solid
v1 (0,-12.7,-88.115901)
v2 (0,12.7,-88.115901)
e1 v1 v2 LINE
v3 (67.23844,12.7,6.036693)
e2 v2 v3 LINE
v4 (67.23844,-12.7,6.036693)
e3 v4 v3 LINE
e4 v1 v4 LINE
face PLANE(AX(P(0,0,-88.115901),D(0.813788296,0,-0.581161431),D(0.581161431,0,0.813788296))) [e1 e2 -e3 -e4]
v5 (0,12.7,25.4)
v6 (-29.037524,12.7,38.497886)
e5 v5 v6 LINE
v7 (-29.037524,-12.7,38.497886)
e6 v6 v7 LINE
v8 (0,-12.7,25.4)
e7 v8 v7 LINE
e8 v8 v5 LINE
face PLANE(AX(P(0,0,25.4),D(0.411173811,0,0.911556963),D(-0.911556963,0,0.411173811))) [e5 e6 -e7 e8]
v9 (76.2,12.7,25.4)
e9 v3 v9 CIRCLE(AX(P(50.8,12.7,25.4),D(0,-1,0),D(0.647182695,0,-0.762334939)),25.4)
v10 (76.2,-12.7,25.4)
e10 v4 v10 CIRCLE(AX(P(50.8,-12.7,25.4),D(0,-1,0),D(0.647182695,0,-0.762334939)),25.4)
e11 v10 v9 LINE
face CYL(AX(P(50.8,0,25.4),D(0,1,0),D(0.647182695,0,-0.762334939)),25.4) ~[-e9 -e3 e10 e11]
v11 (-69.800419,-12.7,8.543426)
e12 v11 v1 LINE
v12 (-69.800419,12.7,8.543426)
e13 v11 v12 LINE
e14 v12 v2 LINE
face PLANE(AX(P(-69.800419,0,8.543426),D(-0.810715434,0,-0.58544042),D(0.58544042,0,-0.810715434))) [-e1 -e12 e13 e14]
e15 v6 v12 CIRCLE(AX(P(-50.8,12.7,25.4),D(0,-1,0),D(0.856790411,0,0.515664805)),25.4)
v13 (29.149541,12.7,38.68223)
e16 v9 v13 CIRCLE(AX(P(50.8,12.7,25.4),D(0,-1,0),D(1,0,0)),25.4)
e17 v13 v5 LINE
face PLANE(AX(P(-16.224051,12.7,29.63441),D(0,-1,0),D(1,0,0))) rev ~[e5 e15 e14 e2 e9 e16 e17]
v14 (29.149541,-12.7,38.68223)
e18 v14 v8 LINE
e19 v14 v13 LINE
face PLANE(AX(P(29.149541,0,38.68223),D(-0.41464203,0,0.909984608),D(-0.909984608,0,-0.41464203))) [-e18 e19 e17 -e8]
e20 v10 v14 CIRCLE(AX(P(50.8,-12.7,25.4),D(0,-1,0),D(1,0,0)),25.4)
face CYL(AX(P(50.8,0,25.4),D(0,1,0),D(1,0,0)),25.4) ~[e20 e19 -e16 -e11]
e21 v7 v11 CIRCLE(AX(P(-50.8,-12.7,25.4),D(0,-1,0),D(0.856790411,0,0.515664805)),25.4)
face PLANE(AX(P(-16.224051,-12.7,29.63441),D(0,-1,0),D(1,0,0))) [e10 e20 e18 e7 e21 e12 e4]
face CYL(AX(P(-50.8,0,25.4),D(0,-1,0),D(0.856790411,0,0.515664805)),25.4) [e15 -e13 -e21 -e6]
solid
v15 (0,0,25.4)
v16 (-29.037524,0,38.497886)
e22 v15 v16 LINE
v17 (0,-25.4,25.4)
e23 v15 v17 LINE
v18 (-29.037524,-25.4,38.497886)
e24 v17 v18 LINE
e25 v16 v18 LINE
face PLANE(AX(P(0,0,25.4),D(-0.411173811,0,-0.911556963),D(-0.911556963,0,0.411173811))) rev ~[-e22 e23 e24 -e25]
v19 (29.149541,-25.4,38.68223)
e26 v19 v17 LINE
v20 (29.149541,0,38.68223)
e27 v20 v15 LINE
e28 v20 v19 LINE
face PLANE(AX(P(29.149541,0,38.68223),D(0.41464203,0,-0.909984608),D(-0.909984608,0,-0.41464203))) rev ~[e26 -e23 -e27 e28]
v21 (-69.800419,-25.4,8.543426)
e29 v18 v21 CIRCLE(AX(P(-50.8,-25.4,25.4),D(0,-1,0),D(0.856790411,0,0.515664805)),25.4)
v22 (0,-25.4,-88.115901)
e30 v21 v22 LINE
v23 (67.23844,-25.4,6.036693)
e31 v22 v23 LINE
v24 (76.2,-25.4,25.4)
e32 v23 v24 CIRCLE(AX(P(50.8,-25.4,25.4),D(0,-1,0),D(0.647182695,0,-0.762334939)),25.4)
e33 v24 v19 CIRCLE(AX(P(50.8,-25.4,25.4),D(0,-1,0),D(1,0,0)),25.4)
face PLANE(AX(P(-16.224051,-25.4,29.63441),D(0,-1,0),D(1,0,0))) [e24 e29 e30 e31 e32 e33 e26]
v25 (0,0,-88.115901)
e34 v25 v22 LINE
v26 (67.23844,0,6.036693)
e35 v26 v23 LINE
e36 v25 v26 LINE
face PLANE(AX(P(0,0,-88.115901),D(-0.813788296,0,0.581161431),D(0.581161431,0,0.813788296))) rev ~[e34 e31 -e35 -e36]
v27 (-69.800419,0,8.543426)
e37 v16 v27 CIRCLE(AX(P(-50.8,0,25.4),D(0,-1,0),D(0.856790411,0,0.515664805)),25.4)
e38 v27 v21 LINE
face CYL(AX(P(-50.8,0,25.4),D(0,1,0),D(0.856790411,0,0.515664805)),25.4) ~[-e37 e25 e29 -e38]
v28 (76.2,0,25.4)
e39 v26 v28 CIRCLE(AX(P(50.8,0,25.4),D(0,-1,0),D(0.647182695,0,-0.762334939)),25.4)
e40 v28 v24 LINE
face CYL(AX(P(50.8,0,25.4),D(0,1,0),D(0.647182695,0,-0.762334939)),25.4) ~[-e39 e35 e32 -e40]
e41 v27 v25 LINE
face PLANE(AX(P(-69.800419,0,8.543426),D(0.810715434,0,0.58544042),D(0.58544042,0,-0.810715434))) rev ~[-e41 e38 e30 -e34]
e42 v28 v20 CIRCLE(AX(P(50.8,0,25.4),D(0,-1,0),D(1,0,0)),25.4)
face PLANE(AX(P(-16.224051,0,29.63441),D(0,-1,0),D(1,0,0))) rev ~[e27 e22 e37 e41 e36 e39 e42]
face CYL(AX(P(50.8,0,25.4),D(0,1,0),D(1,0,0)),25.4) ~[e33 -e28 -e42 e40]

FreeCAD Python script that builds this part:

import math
import FreeCAD as App
import Part
import Sketcher

V = App.Vector
Q = App.Units.Quantity

doc = App.newDocument("Part")
body = doc.addObject("PartDesign::Body", "Body")

# Sketch on XZ plane
sketch1 = doc.addObject("Sketcher::SketchObject", "Sketch")
body.addObject(sketch1)
sketch1.AttachmentSupport = (doc.XZ_Plane, [""])
sketch1.MapMode = "FlatFace"
sketch1.addGeometry([
    Part.LineSegment(V(0, 25.4, 0), V(-29.037524, 38.497886, 0)),  # 0
    Part.ArcOfCircle(Part.Circle(V(-50.8, 25.4, 0), V(0, 0, 1), 25.4), math.radians(31.041902), math.radians(221.57843)),  # 1
    Part.LineSegment(V(-69.800419, 8.543426, 0), V(0, -88.115901, 0)),  # 2
    Part.LineSegment(V(0, -88.115901, 0), V(67.23844, 6.036693, 0)),  # 3
    Part.ArcOfCircle(Part.Circle(V(50.8, 25.4, 0), V(0, 0, 1), 25.4), math.radians(-49.670476), math.radians(0)),  # 4
    Part.ArcOfCircle(Part.Circle(V(50.8, 25.4, 0), V(0, 0, 1), 25.4), math.radians(0), math.radians(148.471512)),  # 5
    Part.LineSegment(V(29.149541, 38.68223, 0), V(0, 25.4, 0)),  # 6
], False)
sketch1.addConstraint([
    Sketcher.Constraint("Coincident", 0, 2, 1, 1),
    Sketcher.Constraint("Coincident", 1, 2, 2, 1),
    Sketcher.Constraint("Coincident", 2, 2, 3, 1),
    Sketcher.Constraint("Coincident", 3, 2, 4, 1),
    Sketcher.Constraint("Tangent", 4, 2, 5, 1),
    Sketcher.Constraint("Coincident", 5, 2, 6, 1),
    Sketcher.Constraint("Coincident", 6, 2, 0, 1),
    Sketcher.Constraint("Equal", 1, 4),
    Sketcher.Constraint("Equal", 4, 5),
    Sketcher.Constraint("Symmetric", 1, 3, 4, 3, -2),
    Sketcher.Constraint("PointOnObject", 2, 2, -2),
    Sketcher.Constraint("PointOnObject", 6, 2, -2),
    Sketcher.Constraint("Horizontal", 5, 3, 4, 2),
    Sketcher.Constraint("Horizontal", 4, 2, 6, 2),
    Sketcher.Constraint("Radius", 1, Q("1 in")),
    Sketcher.Constraint("DistanceX", 1, 3, -1, 1, Q("2 in")),
    Sketcher.Constraint("DistanceY", -1, 1, 1, 3, Q("1 in")),
    Sketcher.Constraint("DistanceY", 2, 2, -1, 1, 88.115901),
    Sketcher.Constraint("DistanceX", 5, 2, 3, 2, 38.088899),
    Sketcher.Constraint("DistanceX", 1, 2, -1, 1, 69.800419),
    Sketcher.Constraint("DistanceX", -1, 1, 3, 2, 67.23844),
    Sketcher.Constraint("DistanceY", 1, 2, 0, 2, 29.95446),
])
pad1 = doc.addObject("PartDesign::Pad", "Pad")
body.addObject(pad1)
pad1.Profile = sketch1
pad1.Length = Q("1 in")
pad1.Midplane = True
body2 = doc.addObject("PartDesign::Body", "Body001")

# Sketch on XZ plane
sketch2 = doc.addObject("Sketcher::SketchObject", "Sketch001")
body2.addObject(sketch2)
sketch2.AttachmentSupport = (doc.getObject("XZ_Plane001"), [""])
sketch2.MapMode = "FlatFace"
sketch2.addGeometry([
    Part.LineSegment(V(0, 25.4, 0), V(-29.037524, 38.497886, 0)),  # 0
    Part.ArcOfCircle(Part.Circle(V(-50.8, 25.4, 0), V(0, 0, 1), 25.4), math.radians(31.041902), math.radians(221.57843)),  # 1
    Part.LineSegment(V(-69.800419, 8.543426, 0), V(0, -88.115901, 0)),  # 2
    Part.LineSegment(V(0, -88.115901, 0), V(67.23844, 6.036693, 0)),  # 3
    Part.ArcOfCircle(Part.Circle(V(50.8, 25.4, 0), V(0, 0, 1), 25.4), math.radians(-49.670476), math.radians(0)),  # 4
    Part.ArcOfCircle(Part.Circle(V(50.8, 25.4, 0), V(0, 0, 1), 25.4), math.radians(0), math.radians(148.471512)),  # 5
    Part.LineSegment(V(29.149541, 38.68223, 0), V(0, 25.4, 0)),  # 6
], False)
sketch2.addConstraint([
    Sketcher.Constraint("Coincident", 0, 2, 1, 1),
    Sketcher.Constraint("Coincident", 1, 2, 2, 1),
    Sketcher.Constraint("Coincident", 2, 2, 3, 1),
    Sketcher.Constraint("Coincident", 3, 2, 4, 1),
    Sketcher.Constraint("Tangent", 4, 2, 5, 1),
    Sketcher.Constraint("Coincident", 5, 2, 6, 1),
    Sketcher.Constraint("Coincident", 6, 2, 0, 1),
    Sketcher.Constraint("Equal", 1, 4),
    Sketcher.Constraint("Equal", 4, 5),
    Sketcher.Constraint("Symmetric", 1, 3, 4, 3, -2),
    Sketcher.Constraint("PointOnObject", 2, 2, -2),
    Sketcher.Constraint("PointOnObject", 6, 2, -2),
    Sketcher.Constraint("Horizontal", 5, 3, 4, 2),
    Sketcher.Constraint("Horizontal", 4, 2, 6, 2),
    Sketcher.Constraint("Radius", 1, Q("1 in")),
    Sketcher.Constraint("DistanceX", 1, 3, -1, 1, Q("2 in")),
    Sketcher.Constraint("DistanceY", -1, 1, 1, 3, Q("1 in")),
    Sketcher.Constraint("DistanceY", 2, 2, -1, 1, 88.115901),
    Sketcher.Constraint("DistanceX", 5, 2, 3, 2, 38.088899),
    Sketcher.Constraint("DistanceX", 1, 2, -1, 1, 69.800419),
    Sketcher.Constraint("DistanceX", -1, 1, 3, 2, 67.23844),
    Sketcher.Constraint("DistanceY", 1, 2, 0, 2, 29.95446),
])
pad2 = doc.addObject("PartDesign::Pad", "Pad001")
body2.addObject(pad2)
pad2.Profile = sketch2
pad2.Length = Q("1 in")

doc.recompute()
